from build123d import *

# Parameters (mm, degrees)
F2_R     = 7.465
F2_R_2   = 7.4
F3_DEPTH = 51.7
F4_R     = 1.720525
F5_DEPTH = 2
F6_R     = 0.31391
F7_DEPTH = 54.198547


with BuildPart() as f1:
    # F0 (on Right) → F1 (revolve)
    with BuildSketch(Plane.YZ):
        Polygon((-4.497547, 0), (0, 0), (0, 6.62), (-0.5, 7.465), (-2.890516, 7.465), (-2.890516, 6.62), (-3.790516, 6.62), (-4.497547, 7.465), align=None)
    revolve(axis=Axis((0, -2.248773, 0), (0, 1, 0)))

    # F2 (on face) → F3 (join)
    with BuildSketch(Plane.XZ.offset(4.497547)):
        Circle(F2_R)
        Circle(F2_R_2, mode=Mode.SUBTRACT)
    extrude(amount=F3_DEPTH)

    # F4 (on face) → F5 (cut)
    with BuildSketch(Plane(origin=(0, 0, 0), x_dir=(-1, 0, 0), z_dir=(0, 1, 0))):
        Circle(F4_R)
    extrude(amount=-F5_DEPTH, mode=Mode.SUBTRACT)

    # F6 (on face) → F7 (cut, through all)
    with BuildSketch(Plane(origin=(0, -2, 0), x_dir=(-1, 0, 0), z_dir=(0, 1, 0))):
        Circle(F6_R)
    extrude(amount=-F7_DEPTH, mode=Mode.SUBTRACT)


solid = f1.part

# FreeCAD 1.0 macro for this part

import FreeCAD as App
import Part
import Sketcher

V = App.Vector
Q = App.Units.Quantity


def add_polygon(sketch, points):
    """Adds a closed chain of lines whose ends are joined by coincident constraints."""
    first, n = sketch.GeometryCount, len(points)
    for a, b in zip(points, points[1:] + points[:1]):
        sketch.addGeometry(Part.LineSegment(App.Vector(*a, 0), App.Vector(*b, 0)), False)
    for i in range(n):
        sketch.addConstraint(Sketcher.Constraint("Coincident", first + i, 2, first + (i + 1) % n, 1))

doc = App.newDocument("Part")
body = doc.addObject("PartDesign::Body", "Body")

# Sketch on YZ plane
sketch1 = body.newObject("Sketcher::SketchObject", "Sketch")
sketch1.AttachmentSupport = (doc.getObject("YZ_Plane"), [""])
sketch1.MapMode = "FlatFace"
add_polygon(sketch1, [(-4.5, 0), (0, 0), (0, 6.6), (-0.5, 7.5), (-2.9, 7.5), (-2.9, 6.6), (-3.8, 6.6), (-4.5, 7.5)])  # lines 0-7
sketch1.addConstraint(Sketcher.Constraint("Horizontal", 0))
sketch1.addConstraint(Sketcher.Constraint("Vertical", 1))
sketch1.addConstraint(Sketcher.Constraint("Horizontal", 3))
sketch1.addConstraint(Sketcher.Constraint("Vertical", 4))
sketch1.addConstraint(Sketcher.Constraint("Horizontal", 5))
sketch1.addConstraint(Sketcher.Constraint("Vertical", 7))
sketch1.addConstraint(Sketcher.Constraint("Coincident", 0, 2, -1, 1))
sketch1.addConstraint(Sketcher.Constraint("Horizontal", 1, 2, 4, 2))
sketch1.addConstraint(Sketcher.Constraint("Horizontal", 3, 2, 6, 2))
sketch1.addConstraint(Sketcher.Constraint("DistanceX", 5, 2, 5, 1, Q("0.9 mm")))
sketch1.addConstraint(Sketcher.Constraint("DistanceY", 1, 1, 1, 2, Q("6.62 mm")))
sketch1.addConstraint(Sketcher.Constraint("DistanceX", 2, 2, -1, 1, Q("0.5 mm")))
sketch1.addConstraint(Sketcher.Constraint("Angle", 6, Q("129.920001 deg")))
sketch1.addConstraint(Sketcher.Constraint("DistanceY", 4, 2, 4, 1, Q("0.845 mm")))
sketch1.addConstraint(Sketcher.Constraint("DistanceX", 0, 1, 0, 2, Q("4.497547 mm")))
revolution = body.newObject("PartDesign::Revolution", "Revolution")
revolution.Profile = sketch1
revolution.ReferenceAxis = (sketch1, ["H_Axis"])
revolution.Angle = 360

# Sketch on XZ plane
sketch2 = body.newObject("Sketcher::SketchObject", "Sketch001")
sketch2.AttachmentSupport = (doc.getObject("XZ_Plane"), [""])
sketch2.MapMode = "FlatFace"
sketch2.AttachmentOffset = App.Placement(V(0, 0, 4.497547), App.Rotation())
sketch2.addGeometry(Part.Circle(V(0, 0, 0), V(0, 0, 1), 7), False)
sketch2.addGeometry(Part.Circle(V(0, 0, 0), V(0, 0, 1), 7), False)
sketch2.addConstraint(Sketcher.Constraint("Coincident", 0, 3, -1, 1))
sketch2.addConstraint(Sketcher.Constraint("Coincident", 1, 3, -1, 1))
sketch2.addConstraint(Sketcher.Constraint("Diameter", 1, Q("14.8 mm")))
sketch2.addConstraint(Sketcher.Constraint("Diameter", 0, Q("14.93 mm")))
pad1 = body.newObject("PartDesign::Pad", "Pad")
pad1.Profile = sketch2
pad1.Length = 51.7

# Sketch on XZ plane
sketch3 = body.newObject("Sketcher::SketchObject", "Sketch002")
sketch3.AttachmentSupport = (doc.getObject("XZ_Plane"), [""])
sketch3.MapMode = "FlatFace"
sketch3.addGeometry(Part.Circle(V(0, 0, 0), V(0, 0, 1), 1.7), False)
sketch3.addConstraint(Sketcher.Constraint("Coincident", 0, 3, -1, 1))
sketch3.addConstraint(Sketcher.Constraint("Diameter", 0, Q("3.44105 mm")))
pocket1 = body.newObject("PartDesign::Pocket", "Pocket")
pocket1.Profile = sketch3
pocket1.Length = 2
pocket1.Reversed = True

# Sketch on XZ plane
sketch4 = body.newObject("Sketcher::SketchObject", "Sketch003")
sketch4.AttachmentSupport = (doc.getObject("XZ_Plane"), [""])
sketch4.MapMode = "FlatFace"
sketch4.AttachmentOffset = App.Placement(V(0, 0, 2), App.Rotation())
sketch4.addGeometry(Part.Circle(V(0, 0, 0), V(0, 0, 1), 0.31), False)
sketch4.addConstraint(Sketcher.Constraint("Coincident", 0, 3, -1, 1))
sketch4.addConstraint(Sketcher.Constraint("Diameter", 0, Q("0.62782 mm")))
pocket2 = body.newObject("PartDesign::Pocket", "Pocket001")
pocket2.Profile = sketch4
pocket2.Type = "ThroughAll"
pocket2.Reversed = True

doc.recompute()
